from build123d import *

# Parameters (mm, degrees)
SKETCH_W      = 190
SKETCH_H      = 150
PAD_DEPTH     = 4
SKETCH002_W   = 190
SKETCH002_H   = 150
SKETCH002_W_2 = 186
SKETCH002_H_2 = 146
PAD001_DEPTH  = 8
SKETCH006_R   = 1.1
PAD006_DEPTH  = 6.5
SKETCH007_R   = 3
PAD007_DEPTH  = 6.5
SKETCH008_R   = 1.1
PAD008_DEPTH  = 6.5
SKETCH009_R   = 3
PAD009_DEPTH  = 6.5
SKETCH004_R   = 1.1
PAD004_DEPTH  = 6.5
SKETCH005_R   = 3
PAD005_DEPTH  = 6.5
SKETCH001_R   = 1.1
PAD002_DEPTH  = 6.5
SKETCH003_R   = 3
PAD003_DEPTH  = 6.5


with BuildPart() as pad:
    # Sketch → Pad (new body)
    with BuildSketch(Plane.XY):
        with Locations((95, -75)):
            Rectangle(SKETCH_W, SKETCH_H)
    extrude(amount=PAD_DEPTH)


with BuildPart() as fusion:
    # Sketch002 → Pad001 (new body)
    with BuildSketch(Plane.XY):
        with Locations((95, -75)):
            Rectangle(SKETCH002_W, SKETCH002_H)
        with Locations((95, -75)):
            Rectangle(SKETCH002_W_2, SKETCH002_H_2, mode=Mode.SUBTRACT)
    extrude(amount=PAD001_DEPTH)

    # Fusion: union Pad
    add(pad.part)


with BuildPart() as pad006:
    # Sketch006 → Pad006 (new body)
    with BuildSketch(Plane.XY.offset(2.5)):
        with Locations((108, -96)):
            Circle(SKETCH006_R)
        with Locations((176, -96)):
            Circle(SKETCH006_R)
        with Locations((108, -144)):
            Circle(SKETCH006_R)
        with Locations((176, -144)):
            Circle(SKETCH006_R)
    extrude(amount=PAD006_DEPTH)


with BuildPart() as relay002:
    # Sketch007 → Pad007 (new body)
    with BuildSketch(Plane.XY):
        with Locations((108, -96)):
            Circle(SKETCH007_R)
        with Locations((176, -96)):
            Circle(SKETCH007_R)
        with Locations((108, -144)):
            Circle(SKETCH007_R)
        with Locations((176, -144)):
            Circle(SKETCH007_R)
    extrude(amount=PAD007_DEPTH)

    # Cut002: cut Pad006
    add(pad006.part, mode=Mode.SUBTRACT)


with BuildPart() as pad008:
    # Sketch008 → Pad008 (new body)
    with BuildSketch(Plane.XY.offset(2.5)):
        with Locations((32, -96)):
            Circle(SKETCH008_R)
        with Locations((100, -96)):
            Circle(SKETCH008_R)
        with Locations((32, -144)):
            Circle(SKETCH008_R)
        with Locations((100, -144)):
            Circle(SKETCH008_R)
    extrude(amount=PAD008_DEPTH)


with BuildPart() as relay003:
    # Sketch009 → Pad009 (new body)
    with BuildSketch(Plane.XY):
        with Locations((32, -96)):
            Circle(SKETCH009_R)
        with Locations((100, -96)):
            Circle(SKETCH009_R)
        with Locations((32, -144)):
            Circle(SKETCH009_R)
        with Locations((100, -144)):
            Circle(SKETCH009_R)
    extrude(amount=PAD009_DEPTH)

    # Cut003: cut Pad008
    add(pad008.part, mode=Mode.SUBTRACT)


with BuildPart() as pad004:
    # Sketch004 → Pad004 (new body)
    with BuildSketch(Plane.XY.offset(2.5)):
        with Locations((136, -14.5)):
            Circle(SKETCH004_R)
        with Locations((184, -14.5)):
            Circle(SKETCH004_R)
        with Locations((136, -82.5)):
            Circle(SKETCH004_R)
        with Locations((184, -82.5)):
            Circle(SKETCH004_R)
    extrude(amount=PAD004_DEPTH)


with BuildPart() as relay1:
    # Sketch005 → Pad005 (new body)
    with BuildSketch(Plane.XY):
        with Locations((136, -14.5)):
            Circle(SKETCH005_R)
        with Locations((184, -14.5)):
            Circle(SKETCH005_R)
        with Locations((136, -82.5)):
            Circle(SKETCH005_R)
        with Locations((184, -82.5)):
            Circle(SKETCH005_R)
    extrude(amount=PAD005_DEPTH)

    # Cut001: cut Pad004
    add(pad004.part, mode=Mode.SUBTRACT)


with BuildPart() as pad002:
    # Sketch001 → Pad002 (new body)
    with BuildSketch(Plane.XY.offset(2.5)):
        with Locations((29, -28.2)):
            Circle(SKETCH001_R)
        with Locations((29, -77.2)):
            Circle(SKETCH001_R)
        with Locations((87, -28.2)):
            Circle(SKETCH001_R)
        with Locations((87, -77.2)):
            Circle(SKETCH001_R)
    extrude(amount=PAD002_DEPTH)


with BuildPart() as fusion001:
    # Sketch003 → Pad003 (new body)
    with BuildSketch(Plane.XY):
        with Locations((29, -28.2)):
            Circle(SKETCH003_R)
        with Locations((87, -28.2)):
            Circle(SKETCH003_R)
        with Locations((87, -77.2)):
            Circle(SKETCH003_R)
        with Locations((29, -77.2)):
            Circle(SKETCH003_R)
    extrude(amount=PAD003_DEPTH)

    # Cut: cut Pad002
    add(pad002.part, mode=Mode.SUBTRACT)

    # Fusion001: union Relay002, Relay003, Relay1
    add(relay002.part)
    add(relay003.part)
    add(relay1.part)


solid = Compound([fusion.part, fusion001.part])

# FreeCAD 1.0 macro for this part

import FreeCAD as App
import Part
import Sketcher
from FreeCAD import Vector

doc = App.newDocument("Part")
body = doc.addObject("PartDesign::Body", "Body")

sketch1 = body.newObject("Sketcher::SketchObject", "Sketch")
sketch1.AttachmentSupport = (doc.getObject("XY_Plane"), [""])
sketch1.MapMode = "FlatFace"
sketch1.addGeometry([
    Part.LineSegment(Vector(0, 0, 0), Vector(0, -150, 0)),
    Part.LineSegment(Vector(0, -150, 0), Vector(190, -150, 0)),
    Part.LineSegment(Vector(190, -150, 0), Vector(190, 0, 0)),
    Part.LineSegment(Vector(190, 0, 0), Vector(0, 0, 0)),
], False)
sketch1.addConstraint([
    Sketcher.Constraint("Coincident", 0, 2, 1, 1),
    Sketcher.Constraint("Coincident", 1, 2, 2, 1),
    Sketcher.Constraint("Coincident", 2, 2, 3, 1),
    Sketcher.Constraint("Coincident", 3, 2, 0, 1),
    Sketcher.Constraint("Vertical", 0),
    Sketcher.Constraint("Horizontal", 1),
    Sketcher.Constraint("Vertical", 2),
    Sketcher.Constraint("Horizontal", 3),
    Sketcher.Constraint("Coincident", 3, 2, -1, 1),
    Sketcher.Constraint("DistanceX", 1, 1, 1, 2, 190.0),
    Sketcher.Constraint("DistanceY", 0, 2, 0, 1, 150.0),
])
pad1 = body.newObject("PartDesign::Pad", "Pad")
pad1.Profile = sketch1
pad1.Length = 4
body2 = doc.addObject("PartDesign::Body", "Body001")

sketch2 = body2.newObject("Sketcher::SketchObject", "Sketch001")
sketch2.AttachmentSupport = (doc.getObject("XY_Plane001"), [""])
sketch2.MapMode = "FlatFace"
sketch2.addGeometry([
    Part.LineSegment(Vector(0, 0, 0), Vector(0, -150, 0)),
    Part.LineSegment(Vector(0, -150, 0), Vector(190, -150, 0)),
    Part.LineSegment(Vector(190, -150, 0), Vector(190, 0, 0)),
    Part.LineSegment(Vector(190, 0, 0), Vector(0, 0, 0)),
    Part.LineSegment(Vector(188, -148, 0), Vector(2, -148, 0)),
    Part.LineSegment(Vector(2, -148, 0), Vector(2, -2, 0)),
    Part.LineSegment(Vector(2, -2, 0), Vector(188, -2, 0)),
    Part.LineSegment(Vector(188, -2, 0), Vector(188, -148, 0)),
], False)
sketch2.addConstraint([
    Sketcher.Constraint("Coincident", 0, 2, 1, 1),
    Sketcher.Constraint("Coincident", 1, 2, 2, 1),
    Sketcher.Constraint("Coincident", 2, 2, 3, 1),
    Sketcher.Constraint("Coincident", 3, 2, 0, 1),
    Sketcher.Constraint("Coincident", 4, 2, 5, 1),
    Sketcher.Constraint("Coincident", 5, 2, 6, 1),
    Sketcher.Constraint("Coincident", 6, 2, 7, 1),
    Sketcher.Constraint("Coincident", 7, 2, 4, 1),
    Sketcher.Constraint("Vertical", 0),
    Sketcher.Constraint("Horizontal", 1),
    Sketcher.Constraint("Vertical", 2),
    Sketcher.Constraint("Horizontal", 3),
    Sketcher.Constraint("Horizontal", 4),
    Sketcher.Constraint("Vertical", 5),
    Sketcher.Constraint("Horizontal", 6),
    Sketcher.Constraint("Vertical", 7),
    Sketcher.Constraint("Coincident", 3, 2, -1, 1),
    Sketcher.Constraint("DistanceX", 1, 1, 1, 2, 190.0),
    Sketcher.Constraint("DistanceX", 4, 2, 4, 1, 186.0),
    Sketcher.Constraint("DistanceY", 0, 2, 0, 1, 150.0),
    Sketcher.Constraint("DistanceY", 5, 1, 5, 2, 146.0),
    Sketcher.Constraint("DistanceX", -1, 1, 4, 2, 2.0),
    Sketcher.Constraint("DistanceY", 4, 2, -1, 1, 148.0),
])
pad2 = body2.newObject("PartDesign::Pad", "Pad001")
pad2.Profile = sketch2
pad2.Length = 8
doc.recompute()

boolean = body2.newObject("PartDesign::Boolean", "Boolean")
boolean.Type = "Fuse"
boolean.addObjects([body])
body3 = doc.addObject("PartDesign::Body", "Body002")
body3.AllowCompound = True

sketch3 = body3.newObject("Sketcher::SketchObject", "Sketch002")
sketch3.AttachmentSupport = (doc.getObject("XY_Plane002"), [""])
sketch3.MapMode = "FlatFace"
sketch3.AttachmentOffset = App.Placement(Vector(0, 0, 2.5), App.Rotation())
sketch3.addGeometry([
    Part.Circle(Vector(108, -96, 0), Vector(0, 0, 1), 1.1),
    Part.Circle(Vector(176, -96, 0), Vector(0, 0, 1), 1.1),
    Part.Circle(Vector(108, -144, 0), Vector(0, 0, 1), 1.1),
    Part.Circle(Vector(176, -144, 0), Vector(0, 0, 1), 1.1),
], False)
sketch3.addConstraint([
    Sketcher.Constraint("Equal", 0, 1),
    Sketcher.Constraint("Equal", 1, 2),
    Sketcher.Constraint("Equal", 2, 3),
    Sketcher.Constraint("Horizontal", 0, 3, 1, 3),
    Sketcher.Constraint("Horizontal", 2, 3, 3, 3),
    Sketcher.Constraint("Vertical", 0, 3, 2, 3),
    Sketcher.Constraint("Vertical", 1, 3, 3, 3),
    Sketcher.Constraint("Diameter", 0, 2.2),
    Sketcher.Constraint("DistanceX", -1, 1, 0, 3, 108.0),
    Sketcher.Constraint("DistanceY", 0, 3, -1, 1, 96.0),
    Sketcher.Constraint("DistanceX", -1, 1, 1, 3, 176.0),
    Sketcher.Constraint("DistanceY", 2, 3, -1, 1, 144.0),
])
pad3 = body3.newObject("PartDesign::Pad", "Pad002")
pad3.Profile = sketch3
pad3.Length = 6.5
body4 = doc.addObject("PartDesign::Body", "Body003")
body4.AllowCompound = True

sketch4 = body4.newObject("Sketcher::SketchObject", "Sketch003")
sketch4.AttachmentSupport = (doc.getObject("XY_Plane003"), [""])
sketch4.MapMode = "FlatFace"
sketch4.addGeometry([
    Part.Circle(Vector(108, -96, 0), Vector(0, 0, 1), 3),
    Part.Circle(Vector(176, -96, 0), Vector(0, 0, 1), 3),
    Part.Circle(Vector(108, -144, 0), Vector(0, 0, 1), 3),
    Part.Circle(Vector(176, -144, 0), Vector(0, 0, 1), 3),
], False)
sketch4.addConstraint([
    Sketcher.Constraint("Equal", 0, 1),
    Sketcher.Constraint("Equal", 1, 2),
    Sketcher.Constraint("Equal", 2, 3),
    Sketcher.Constraint("Horizontal", 0, 3, 1, 3),
    Sketcher.Constraint("Horizontal", 2, 3, 3, 3),
    Sketcher.Constraint("Vertical", 0, 3, 2, 3),
    Sketcher.Constraint("Vertical", 1, 3, 3, 3),
    Sketcher.Constraint("Diameter", 0, 6.0),
    Sketcher.Constraint("DistanceX", -1, 1, 0, 3, 108.0),
    Sketcher.Constraint("DistanceY", 0, 3, -1, 1, 96.0),
    Sketcher.Constraint("DistanceX", -1, 1, 1, 3, 176.0),
    Sketcher.Constraint("DistanceY", 2, 3, -1, 1, 144.0),
])
pad4 = body4.newObject("PartDesign::Pad", "Pad003")
pad4.Profile = sketch4
pad4.Length = 6.5
doc.recompute()

boolean2 = body4.newObject("PartDesign::Boolean", "Boolean001")
boolean2.Type = "Cut"
boolean2.addObjects([body3])
body5 = doc.addObject("PartDesign::Body", "Body004")
body5.AllowCompound = True

sketch5 = body5.newObject("Sketcher::SketchObject", "Sketch004")
sketch5.AttachmentSupport = (doc.getObject("XY_Plane004"), [""])
sketch5.MapMode = "FlatFace"
sketch5.AttachmentOffset = App.Placement(Vector(0, 0, 2.5), App.Rotation())
sketch5.addGeometry([
    Part.Circle(Vector(32, -96, 0), Vector(0, 0, 1), 1.1),
    Part.Circle(Vector(100, -96, 0), Vector(0, 0, 1), 1.1),
    Part.Circle(Vector(32, -144, 0), Vector(0, 0, 1), 1.1),
    Part.Circle(Vector(100, -144, 0), Vector(0, 0, 1), 1.1),
], False)
sketch5.addConstraint([
    Sketcher.Constraint("Equal", 0, 1),
    Sketcher.Constraint("Equal", 1, 2),
    Sketcher.Constraint("Equal", 2, 3),
    Sketcher.Constraint("Horizontal", 0, 3, 1, 3),
    Sketcher.Constraint("Horizontal", 2, 3, 3, 3),
    Sketcher.Constraint("Vertical", 0, 3, 2, 3),
    Sketcher.Constraint("Vertical", 1, 3, 3, 3),
    Sketcher.Constraint("Diameter", 0, 2.2),
    Sketcher.Constraint("DistanceX", -1, 1, 0, 3, 32.0),
    Sketcher.Constraint("DistanceY", 0, 3, -1, 1, 96.0),
    Sketcher.Constraint("DistanceX", -1, 1, 1, 3, 100.0),
    Sketcher.Constraint("DistanceY", 2, 3, -1, 1, 144.0),
])
pad5 = body5.newObject("PartDesign::Pad", "Pad004")
pad5.Profile = sketch5
pad5.Length = 6.5
body6 = doc.addObject("PartDesign::Body", "Body005")
body6.AllowCompound = True

sketch6 = body6.newObject("Sketcher::SketchObject", "Sketch005")
sketch6.AttachmentSupport = (doc.getObject("XY_Plane005"), [""])
sketch6.MapMode = "FlatFace"
sketch6.addGeometry([
    Part.Circle(Vector(32, -96, 0), Vector(0, 0, 1), 3),
    Part.Circle(Vector(100, -96, 0), Vector(0, 0, 1), 3),
    Part.Circle(Vector(32, -144, 0), Vector(0, 0, 1), 3),
    Part.Circle(Vector(100, -144, 0), Vector(0, 0, 1), 3),
], False)
sketch6.addConstraint([
    Sketcher.Constraint("Equal", 0, 1),
    Sketcher.Constraint("Equal", 1, 2),
    Sketcher.Constraint("Equal", 2, 3),
    Sketcher.Constraint("Horizontal", 0, 3, 1, 3),
    Sketcher.Constraint("Horizontal", 2, 3, 3, 3),
    Sketcher.Constraint("Vertical", 0, 3, 2, 3),
    Sketcher.Constraint("Vertical", 1, 3, 3, 3),
    Sketcher.Constraint("Diameter", 0, 6.0),
    Sketcher.Constraint("DistanceX", -1, 1, 0, 3, 32.0),
    Sketcher.Constraint("DistanceY", 0, 3, -1, 1, 96.0),
    Sketcher.Constraint("DistanceX", -1, 1, 1, 3, 100.0),
    Sketcher.Constraint("DistanceY", 2, 3, -1, 1, 144.0),
])
pad6 = body6.newObject("PartDesign::Pad", "Pad005")
pad6.Profile = sketch6
pad6.Length = 6.5
doc.recompute()

boolean3 = body6.newObject("PartDesign::Boolean", "Boolean002")
boolean3.Type = "Cut"
boolean3.addObjects([body5])
body7 = doc.addObject("PartDesign::Body", "Body006")
body7.AllowCompound = True

sketch7 = body7.newObject("Sketcher::SketchObject", "Sketch006")
sketch7.AttachmentSupport = (doc.getObject("XY_Plane006"), [""])
sketch7.MapMode = "FlatFace"
sketch7.AttachmentOffset = App.Placement(Vector(0, 0, 2.5), App.Rotation())
sketch7.addGeometry([
    Part.Circle(Vector(136, -14.5, 0), Vector(0, 0, 1), 1.1),
    Part.Circle(Vector(184, -14.5, 0), Vector(0, 0, 1), 1.1),
    Part.Circle(Vector(136, -82.5, 0), Vector(0, 0, 1), 1.1),
    Part.Circle(Vector(184, -82.5, 0), Vector(0, 0, 1), 1.1),
], False)
sketch7.addConstraint([
    Sketcher.Constraint("Equal", 0, 1),
    Sketcher.Constraint("Equal", 1, 2),
    Sketcher.Constraint("Equal", 2, 3),
    Sketcher.Constraint("Horizontal", 0, 3, 1, 3),
    Sketcher.Constraint("Horizontal", 2, 3, 3, 3),
    Sketcher.Constraint("Vertical", 0, 3, 2, 3),
    Sketcher.Constraint("Vertical", 1, 3, 3, 3),
    Sketcher.Constraint("Diameter", 0, 2.2),
    Sketcher.Constraint("DistanceX", -1, 1, 0, 3, 136.0),
    Sketcher.Constraint("DistanceX", -1, 1, 1, 3, 184.0),
    Sketcher.Constraint("DistanceY", 2, 3, 0, 3, 68.0),
    Sketcher.Constraint("DistanceY", 0, 3, -1, 1, 14.5),
])
pad7 = body7.newObject("PartDesign::Pad", "Pad006")
pad7.Profile = sketch7
pad7.Length = 6.5
body8 = doc.addObject("PartDesign::Body", "Body007")
body8.AllowCompound = True

sketch8 = body8.newObject("Sketcher::SketchObject", "Sketch007")
sketch8.AttachmentSupport = (doc.getObject("XY_Plane007"), [""])
sketch8.MapMode = "FlatFace"
sketch8.addGeometry([
    Part.Circle(Vector(136, -14.5, 0), Vector(0, 0, 1), 3),
    Part.Circle(Vector(184, -14.5, 0), Vector(0, 0, 1), 3),
    Part.Circle(Vector(136, -82.5, 0), Vector(0, 0, 1), 3),
    Part.Circle(Vector(184, -82.5, 0), Vector(0, 0, 1), 3),
], False)
sketch8.addConstraint([
    Sketcher.Constraint("Equal", 0, 1),
    Sketcher.Constraint("Equal", 1, 2),
    Sketcher.Constraint("Equal", 2, 3),
    Sketcher.Constraint("Horizontal", 0, 3, 1, 3),
    Sketcher.Constraint("Horizontal", 2, 3, 3, 3),
    Sketcher.Constraint("Vertical", 0, 3, 2, 3),
    Sketcher.Constraint("Vertical", 1, 3, 3, 3),
    Sketcher.Constraint("Diameter", 0, 6.0),
    Sketcher.Constraint("DistanceX", -1, 1, 0, 3, 136.0),
    Sketcher.Constraint("DistanceX", -1, 1, 1, 3, 184.0),
    Sketcher.Constraint("DistanceY", 2, 3, 0, 3, 68.0),
    Sketcher.Constraint("DistanceY", 0, 3, -1, 1, 14.5),
])
pad8 = body8.newObject("PartDesign::Pad", "Pad007")
pad8.Profile = sketch8
pad8.Length = 6.5
doc.recompute()

boolean4 = body8.newObject("PartDesign::Boolean", "Boolean003")
boolean4.Type = "Cut"
boolean4.addObjects([body7])
body9 = doc.addObject("PartDesign::Body", "Body008")
body9.AllowCompound = True

sketch9 = body9.newObject("Sketcher::SketchObject", "Sketch008")
sketch9.AttachmentSupport = (doc.getObject("XY_Plane008"), [""])
sketch9.MapMode = "FlatFace"
sketch9.AttachmentOffset = App.Placement(Vector(0, 0, 2.5), App.Rotation())
sketch9.addGeometry([
    Part.Circle(Vector(29, -28.2, 0), Vector(0, 0, 1), 1.1),
    Part.Circle(Vector(29, -77.2, 0), Vector(0, 0, 1), 1.1),
    Part.Circle(Vector(87, -28.2, 0), Vector(0, 0, 1), 1.1),
    Part.Circle(Vector(87, -77.2, 0), Vector(0, 0, 1), 1.1),
], False)
sketch9.addConstraint([
    Sketcher.Constraint("Equal", 0, 1),
    Sketcher.Constraint("Equal", 1, 2),
    Sketcher.Constraint("Equal", 2, 3),
    Sketcher.Constraint("Horizontal", 0, 3, 2, 3),
    Sketcher.Constraint("Horizontal", 1, 3, 3, 3),
    Sketcher.Constraint("Vertical", 0, 3, 1, 3),
    Sketcher.Constraint("Vertical", 2, 3, 3, 3),
    Sketcher.Constraint("Diameter", 0, 2.2),
    Sketcher.Constraint("DistanceX", -1, 1, 0, 3, 29.0),
    Sketcher.Constraint("DistanceX", -1, 1, 2, 3, 87.0),
    Sketcher.Constraint("DistanceY", 1, 3, 0, 3, 49.0),
    Sketcher.Constraint("DistanceY", 0, 3, -1, 1, 28.2),
])
pad9 = body9.newObject("PartDesign::Pad", "Pad008")
pad9.Profile = sketch9
pad9.Length = 6.5
body10 = doc.addObject("PartDesign::Body", "Body009")
body10.AllowCompound = True

sketch10 = body10.newObject("Sketcher::SketchObject", "Sketch009")
sketch10.AttachmentSupport = (doc.getObject("XY_Plane009"), [""])
sketch10.MapMode = "FlatFace"
sketch10.addGeometry([
    Part.Circle(Vector(29, -28.2, 0), Vector(0, 0, 1), 3),
    Part.Circle(Vector(87, -28.2, 0), Vector(0, 0, 1), 3),
    Part.Circle(Vector(87, -77.2, 0), Vector(0, 0, 1), 3),
    Part.Circle(Vector(29, -77.2, 0), Vector(0, 0, 1), 3),
], False)
sketch10.addConstraint([
    Sketcher.Constraint("Equal", 0, 1),
    Sketcher.Constraint("Equal", 1, 2),
    Sketcher.Constraint("Equal", 2, 3),
    Sketcher.Constraint("Horizontal", 0, 3, 1, 3),
    Sketcher.Constraint("Horizontal", 2, 3, 3, 3),
    Sketcher.Constraint("Vertical", 1, 3, 2, 3),
    Sketcher.Constraint("Vertical", 0, 3, 3, 3),
    Sketcher.Constraint("Diameter", 0, 6.0),
    Sketcher.Constraint("DistanceX", -1, 1, 0, 3, 29.0),
    Sketcher.Constraint("DistanceX", -1, 1, 1, 3, 87.0),
    Sketcher.Constraint("DistanceY", 2, 3, 1, 3, 49.0),
    Sketcher.Constraint("DistanceY", 0, 3, -1, 1, 28.2),
])
pad10 = body10.newObject("PartDesign::Pad", "Pad009")
pad10.Profile = sketch10
pad10.Length = 6.5
doc.recompute()

boolean5 = body10.newObject("PartDesign::Boolean", "Boolean004")
boolean5.Type = "Cut"
boolean5.addObjects([body9])
doc.recompute()

boolean6 = body10.newObject("PartDesign::Boolean", "Boolean005")
boolean6.Type = "Fuse"
boolean6.addObjects([body4])
doc.recompute()

boolean7 = body10.newObject("PartDesign::Boolean", "Boolean006")
boolean7.Type = "Fuse"
boolean7.addObjects([body6])
doc.recompute()

boolean8 = body10.newObject("PartDesign::Boolean", "Boolean007")
boolean8.Type = "Fuse"
boolean8.addObjects([body8])

doc.recompute()
